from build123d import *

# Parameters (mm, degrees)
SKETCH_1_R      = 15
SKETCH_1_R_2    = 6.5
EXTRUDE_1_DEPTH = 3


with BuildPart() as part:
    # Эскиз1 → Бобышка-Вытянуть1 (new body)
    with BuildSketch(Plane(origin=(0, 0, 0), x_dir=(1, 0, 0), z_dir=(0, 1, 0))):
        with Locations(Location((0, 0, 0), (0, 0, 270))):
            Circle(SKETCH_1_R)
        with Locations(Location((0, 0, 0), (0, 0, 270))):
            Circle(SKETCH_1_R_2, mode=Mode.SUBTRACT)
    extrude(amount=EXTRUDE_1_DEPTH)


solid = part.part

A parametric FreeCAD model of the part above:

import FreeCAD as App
import Part
import Sketcher

V = App.Vector
Q = App.Units.Quantity

doc = App.newDocument("Part")
params = doc.addObject("Spreadsheet::Sheet", "Params")
for row, (alias, value) in enumerate([
    ("sketch1_diameter", "30 mm"),
    ("sketch1_diameter2", "13 mm"),
    ("pad1_length", "3 mm"),
], start=1):
    params.set(f"A{row}", alias)
    params.set(f"B{row}", "=" + value)
    params.setAlias(f"B{row}", alias)

body = doc.addObject("PartDesign::Body", "Body")

# Sketch on XZ plane
sketch1 = body.newObject("Sketcher::SketchObject", "Sketch")
sketch1.AttachmentSupport = (doc.getObject("XZ_Plane"), [""])
sketch1.MapMode = "FlatFace"
sketch1.addGeometry([
    Part.Circle(V(0, 0, 0), V(0, 0, 1), 15),
    Part.Circle(V(0, 0, 0), V(0, 0, 1), 6.5),
], False)
sketch1.addConstraint([
    Sketcher.Constraint("Coincident", 0, 3, -1, 1),
    Sketcher.Constraint("Coincident", 1, 3, -1, 1),
    Sketcher.Constraint("Diameter", 0, Q("30 mm")),
    Sketcher.Constraint("Diameter", 1, Q("13 mm")),
])
sketch1.setExpression("Constraints[2]", "Params.sketch1_diameter")
sketch1.setExpression("Constraints[3]", "Params.sketch1_diameter2")
pad1 = body.newObject("PartDesign::Pad", "Pad")
pad1.Profile = sketch1
pad1.setExpression("Length", "Params.pad1_length")
pad1.Reversed = True

doc.recompute()
